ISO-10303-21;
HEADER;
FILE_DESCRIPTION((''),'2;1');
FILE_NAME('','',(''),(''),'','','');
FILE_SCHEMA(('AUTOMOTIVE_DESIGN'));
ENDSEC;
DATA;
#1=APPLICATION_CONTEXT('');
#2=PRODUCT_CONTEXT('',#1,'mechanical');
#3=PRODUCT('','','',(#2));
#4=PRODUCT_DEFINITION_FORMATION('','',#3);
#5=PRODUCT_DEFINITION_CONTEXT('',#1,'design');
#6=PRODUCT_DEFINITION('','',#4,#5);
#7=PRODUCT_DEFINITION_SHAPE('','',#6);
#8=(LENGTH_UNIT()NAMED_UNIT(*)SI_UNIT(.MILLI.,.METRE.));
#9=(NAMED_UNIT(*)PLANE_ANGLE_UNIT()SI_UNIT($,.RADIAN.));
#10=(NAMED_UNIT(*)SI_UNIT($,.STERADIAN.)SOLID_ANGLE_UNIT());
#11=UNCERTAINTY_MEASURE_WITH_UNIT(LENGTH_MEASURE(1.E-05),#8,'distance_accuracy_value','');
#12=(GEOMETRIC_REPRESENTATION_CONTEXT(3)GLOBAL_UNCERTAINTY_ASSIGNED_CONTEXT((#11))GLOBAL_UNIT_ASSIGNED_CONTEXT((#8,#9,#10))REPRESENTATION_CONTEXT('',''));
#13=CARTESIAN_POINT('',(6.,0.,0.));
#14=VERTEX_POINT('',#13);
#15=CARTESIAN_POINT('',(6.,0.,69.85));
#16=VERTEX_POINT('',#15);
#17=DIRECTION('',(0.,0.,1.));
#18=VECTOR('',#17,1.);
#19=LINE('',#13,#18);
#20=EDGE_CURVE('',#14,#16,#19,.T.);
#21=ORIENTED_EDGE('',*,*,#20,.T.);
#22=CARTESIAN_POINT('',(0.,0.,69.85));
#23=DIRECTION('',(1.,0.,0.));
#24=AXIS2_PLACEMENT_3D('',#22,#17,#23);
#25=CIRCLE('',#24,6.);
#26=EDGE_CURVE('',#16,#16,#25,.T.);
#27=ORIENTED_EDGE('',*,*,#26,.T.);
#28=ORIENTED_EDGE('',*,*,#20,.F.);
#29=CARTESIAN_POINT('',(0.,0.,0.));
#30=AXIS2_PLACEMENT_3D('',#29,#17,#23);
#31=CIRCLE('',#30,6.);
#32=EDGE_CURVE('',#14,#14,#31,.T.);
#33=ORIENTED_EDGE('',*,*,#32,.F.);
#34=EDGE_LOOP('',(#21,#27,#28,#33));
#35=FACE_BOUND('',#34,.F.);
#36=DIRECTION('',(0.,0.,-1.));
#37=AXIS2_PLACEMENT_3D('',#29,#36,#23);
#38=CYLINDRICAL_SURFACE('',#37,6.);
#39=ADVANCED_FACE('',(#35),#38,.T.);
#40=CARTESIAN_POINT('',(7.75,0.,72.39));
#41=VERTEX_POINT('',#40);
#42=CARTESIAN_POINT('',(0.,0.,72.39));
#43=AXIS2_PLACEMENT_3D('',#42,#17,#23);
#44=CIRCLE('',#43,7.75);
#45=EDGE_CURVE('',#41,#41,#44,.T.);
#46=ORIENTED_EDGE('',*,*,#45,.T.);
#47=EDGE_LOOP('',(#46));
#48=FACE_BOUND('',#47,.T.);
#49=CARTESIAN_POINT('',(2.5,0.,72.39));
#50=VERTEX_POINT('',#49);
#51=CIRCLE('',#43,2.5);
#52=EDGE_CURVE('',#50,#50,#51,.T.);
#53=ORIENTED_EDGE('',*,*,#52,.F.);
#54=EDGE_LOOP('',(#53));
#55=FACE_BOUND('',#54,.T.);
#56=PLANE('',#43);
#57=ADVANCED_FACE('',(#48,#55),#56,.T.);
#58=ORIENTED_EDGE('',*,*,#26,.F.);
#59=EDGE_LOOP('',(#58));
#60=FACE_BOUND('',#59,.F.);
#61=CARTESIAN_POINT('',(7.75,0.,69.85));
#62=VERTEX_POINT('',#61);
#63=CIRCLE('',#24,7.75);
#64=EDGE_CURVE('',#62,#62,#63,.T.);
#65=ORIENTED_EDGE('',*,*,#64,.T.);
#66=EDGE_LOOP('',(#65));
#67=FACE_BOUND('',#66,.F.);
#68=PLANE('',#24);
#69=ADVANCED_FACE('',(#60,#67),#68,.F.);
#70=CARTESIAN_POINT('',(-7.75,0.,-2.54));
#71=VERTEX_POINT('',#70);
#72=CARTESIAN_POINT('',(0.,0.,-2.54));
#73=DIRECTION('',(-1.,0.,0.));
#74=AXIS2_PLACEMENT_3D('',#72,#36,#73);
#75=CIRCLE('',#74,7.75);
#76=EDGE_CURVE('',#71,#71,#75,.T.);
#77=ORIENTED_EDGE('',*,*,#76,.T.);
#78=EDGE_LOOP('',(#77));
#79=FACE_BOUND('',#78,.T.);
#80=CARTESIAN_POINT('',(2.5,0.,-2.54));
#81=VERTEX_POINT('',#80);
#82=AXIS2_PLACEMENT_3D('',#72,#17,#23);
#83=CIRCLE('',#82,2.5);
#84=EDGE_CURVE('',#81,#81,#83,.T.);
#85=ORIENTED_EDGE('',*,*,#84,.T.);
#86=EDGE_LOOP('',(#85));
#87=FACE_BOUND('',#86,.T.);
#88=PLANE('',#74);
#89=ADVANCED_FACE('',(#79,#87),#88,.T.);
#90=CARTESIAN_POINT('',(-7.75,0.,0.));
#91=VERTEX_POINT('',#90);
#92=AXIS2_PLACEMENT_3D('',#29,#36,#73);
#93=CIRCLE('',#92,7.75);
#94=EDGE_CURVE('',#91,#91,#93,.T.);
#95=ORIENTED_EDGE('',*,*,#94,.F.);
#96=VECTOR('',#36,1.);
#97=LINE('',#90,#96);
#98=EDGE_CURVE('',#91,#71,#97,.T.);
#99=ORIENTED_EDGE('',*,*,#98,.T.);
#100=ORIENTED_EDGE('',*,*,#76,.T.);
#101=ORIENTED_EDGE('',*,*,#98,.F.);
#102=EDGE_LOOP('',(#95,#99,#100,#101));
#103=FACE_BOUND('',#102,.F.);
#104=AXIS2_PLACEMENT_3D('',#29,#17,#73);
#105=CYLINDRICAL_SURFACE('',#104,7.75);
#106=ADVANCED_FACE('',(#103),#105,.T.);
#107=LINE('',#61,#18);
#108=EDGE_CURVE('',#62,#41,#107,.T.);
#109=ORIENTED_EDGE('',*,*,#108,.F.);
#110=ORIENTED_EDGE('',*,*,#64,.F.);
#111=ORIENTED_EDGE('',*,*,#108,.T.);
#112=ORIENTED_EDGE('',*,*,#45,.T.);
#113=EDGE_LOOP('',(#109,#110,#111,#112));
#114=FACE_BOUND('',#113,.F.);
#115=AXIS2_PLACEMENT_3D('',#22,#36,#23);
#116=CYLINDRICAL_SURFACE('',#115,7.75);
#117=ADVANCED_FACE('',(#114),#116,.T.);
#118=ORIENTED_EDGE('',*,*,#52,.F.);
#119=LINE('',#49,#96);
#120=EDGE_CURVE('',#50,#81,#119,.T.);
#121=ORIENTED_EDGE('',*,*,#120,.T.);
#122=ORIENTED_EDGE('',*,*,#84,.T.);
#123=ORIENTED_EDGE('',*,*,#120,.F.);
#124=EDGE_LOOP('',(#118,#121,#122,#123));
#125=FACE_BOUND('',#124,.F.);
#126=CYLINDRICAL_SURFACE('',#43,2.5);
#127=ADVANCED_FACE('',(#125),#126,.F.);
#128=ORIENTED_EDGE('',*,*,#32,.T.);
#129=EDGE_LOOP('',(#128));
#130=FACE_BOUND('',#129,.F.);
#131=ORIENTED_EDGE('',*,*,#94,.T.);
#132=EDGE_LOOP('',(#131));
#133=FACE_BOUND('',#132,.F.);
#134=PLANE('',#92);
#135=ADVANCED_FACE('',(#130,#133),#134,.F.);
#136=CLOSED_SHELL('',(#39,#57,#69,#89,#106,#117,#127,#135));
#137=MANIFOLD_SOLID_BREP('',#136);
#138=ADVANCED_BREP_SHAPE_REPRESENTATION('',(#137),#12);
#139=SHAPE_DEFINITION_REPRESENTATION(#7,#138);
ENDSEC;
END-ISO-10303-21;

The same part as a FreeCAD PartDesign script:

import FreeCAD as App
import Part
import Sketcher

V = App.Vector

doc = App.newDocument("Part")
params = doc.addObject("Spreadsheet::Sheet", "Params")
for row, (alias, value) in enumerate([
    ("sketch1_diameter", "12 mm"),
    ("pad1_length", "69.85 mm"),
    ("sketch2_diameter", "15.5 mm"),
    ("pad2_length", "2.54 mm"),
    ("sketch3_diameter", "15.5 mm"),
    ("pad3_length", "2.54 mm"),
    ("sketch4_diameter", "5 mm"),
    ("pocket1_length", "127 mm"),
], start=1):
    params.set(f"A{row}", alias)
    params.set(f"B{row}", "=" + value)
    params.setAlias(f"B{row}", alias)

body = doc.addObject("PartDesign::Body", "Body")

# Sketch on XY plane
sketch1 = body.newObject("Sketcher::SketchObject", "Sketch")
sketch1.AttachmentSupport = (doc.getObject("XY_Plane"), [""])
sketch1.MapMode = "FlatFace"
sketch1.addGeometry(Part.Circle(V(0, 0, 0), V(0, 0, 1), 6), False)
sketch1.addConstraint(Sketcher.Constraint("Coincident", 0, 3, -1, 1))
sketch1.addConstraint(Sketcher.Constraint("Diameter", 0, 12.0))
sketch1.setExpression("Constraints[1]", "Params.sketch1_diameter")
pad1 = body.newObject("PartDesign::Pad", "Pad")
pad1.Profile = sketch1
pad1.setExpression("Length", "Params.pad1_length")

# Sketch on XY plane
sketch2 = body.newObject("Sketcher::SketchObject", "Sketch001")
sketch2.AttachmentSupport = (doc.getObject("XY_Plane"), [""])
sketch2.MapMode = "FlatFace"
sketch2.AttachmentOffset = App.Placement(V(0, 0, 69.85), App.Rotation())
sketch2.addGeometry(Part.Circle(V(0, 0, 0), V(0, 0, 1), 8), False)
sketch2.addConstraint(Sketcher.Constraint("Coincident", 0, 3, -1, 1))
sketch2.addConstraint(Sketcher.Constraint("Diameter", 0, 15.5))
sketch2.setExpression("Constraints[1]", "Params.sketch2_diameter")
pad2 = body.newObject("PartDesign::Pad", "Pad001")
pad2.Profile = sketch2
pad2.setExpression("Length", "Params.pad2_length")

# Sketch on XY plane
sketch3 = body.newObject("Sketcher::SketchObject", "Sketch002")
sketch3.AttachmentSupport = (doc.getObject("XY_Plane"), [""])
sketch3.MapMode = "FlatFace"
sketch3.addGeometry(Part.Circle(V(0, 0, 0), V(0, 0, 1), 8), False)
sketch3.addConstraint(Sketcher.Constraint("Coincident", 0, 3, -1, 1))
sketch3.addConstraint(Sketcher.Constraint("Diameter", 0, 15.5))
sketch3.setExpression("Constraints[1]", "Params.sketch3_diameter")
pad3 = body.newObject("PartDesign::Pad", "Pad002")
pad3.Profile = sketch3
pad3.setExpression("Length", "Params.pad3_length")
pad3.Reversed = True

# Sketch on XY plane
sketch4 = body.newObject("Sketcher::SketchObject", "Sketch003")
sketch4.AttachmentSupport = (doc.getObject("XY_Plane"), [""])
sketch4.MapMode = "FlatFace"
sketch4.AttachmentOffset = App.Placement(V(0, 0, 72.39), App.Rotation())
sketch4.addGeometry(Part.Circle(V(0, 0, 0), V(0, 0, 1), 2.5), False)
sketch4.addConstraint(Sketcher.Constraint("Coincident", 0, 3, -1, 1))
sketch4.addConstraint(Sketcher.Constraint("Diameter", 0, 5.0))
sketch4.setExpression("Constraints[1]", "Params.sketch4_diameter")
pocket1 = body.newObject("PartDesign::Pocket", "Pocket")
pocket1.Profile = sketch4
pocket1.setExpression("Length", "Params.pocket1_length")

doc.recompute()
